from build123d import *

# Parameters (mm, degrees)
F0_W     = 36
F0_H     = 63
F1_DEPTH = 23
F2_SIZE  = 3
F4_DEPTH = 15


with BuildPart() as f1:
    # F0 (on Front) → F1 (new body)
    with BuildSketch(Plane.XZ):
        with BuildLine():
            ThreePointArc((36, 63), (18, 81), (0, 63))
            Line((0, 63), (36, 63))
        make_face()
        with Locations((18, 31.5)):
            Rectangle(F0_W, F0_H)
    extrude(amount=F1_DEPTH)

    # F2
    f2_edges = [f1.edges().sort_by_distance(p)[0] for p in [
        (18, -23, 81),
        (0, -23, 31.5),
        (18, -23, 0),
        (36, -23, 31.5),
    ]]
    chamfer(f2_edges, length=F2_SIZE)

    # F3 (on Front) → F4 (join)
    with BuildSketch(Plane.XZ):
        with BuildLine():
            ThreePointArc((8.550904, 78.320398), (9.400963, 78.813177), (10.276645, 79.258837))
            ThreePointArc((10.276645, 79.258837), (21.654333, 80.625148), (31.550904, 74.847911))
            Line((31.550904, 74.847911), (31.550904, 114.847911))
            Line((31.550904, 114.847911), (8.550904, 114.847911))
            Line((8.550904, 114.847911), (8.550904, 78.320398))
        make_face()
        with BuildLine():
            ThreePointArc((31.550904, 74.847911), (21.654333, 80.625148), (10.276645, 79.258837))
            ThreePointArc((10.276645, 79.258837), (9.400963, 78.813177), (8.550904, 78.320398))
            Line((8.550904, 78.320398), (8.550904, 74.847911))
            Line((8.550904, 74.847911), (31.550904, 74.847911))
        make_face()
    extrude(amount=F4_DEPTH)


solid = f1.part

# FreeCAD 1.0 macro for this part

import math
import FreeCAD as App
import Part
import Sketcher

V = App.Vector


def edges_at(feature, points):
    """Names of the edges that pass closest to the given points."""
    edges = feature.Shape.Edges
    near = lambda p: min(range(len(edges)), key=lambda i: edges[i].distToShape(Part.Vertex(*p))[0])
    return sorted({f"Edge{near(p) + 1}" for p in points})


def add_polygon(sketch, points):
    """Adds a closed chain of lines whose ends are joined by coincident constraints."""
    first, n = sketch.GeometryCount, len(points)
    for a, b in zip(points, points[1:] + points[:1]):
        sketch.addGeometry(Part.LineSegment(App.Vector(*a, 0), App.Vector(*b, 0)), False)
    for i in range(n):
        sketch.addConstraint(Sketcher.Constraint("Coincident", first + i, 2, first + (i + 1) % n, 1))

doc = App.newDocument("Part")
params = doc.addObject("Spreadsheet::Sheet", "Params")
for row, (alias, value) in enumerate([
    ("sketch1_radius", "18 mm"),
    ("sketch1_height", "63 mm"),
    ("pad1_length", "23 mm"),
    ("chamfer_size", "3 mm"),
    ("sketch2_width", "23 mm"),
    ("sketch2_height", "40 mm"),
    ("pad2_length", "15 mm"),
], start=1):
    params.set(f"A{row}", alias)
    params.set(f"B{row}", "=" + value)
    params.setAlias(f"B{row}", alias)

body = doc.addObject("PartDesign::Body", "Body")

# Sketch on XZ plane
sketch1 = body.newObject("Sketcher::SketchObject", "Sketch")
sketch1.AttachmentSupport = (doc.getObject("XZ_Plane"), [""])
sketch1.MapMode = "FlatFace"
sketch1.addGeometry([
    Part.ArcOfCircle(Part.Circle(V(18, 63, 0), V(0, 0, 1), 18), math.radians(0), math.radians(180)),
    Part.LineSegment(V(0, 63, 0), V(0, 0, 0)),
    Part.LineSegment(V(0, 0, 0), V(36, 0, 0)),
    Part.LineSegment(V(36, 0, 0), V(36, 63, 0)),
], False)
sketch1.addConstraint([
    Sketcher.Constraint("Tangent", 0, 2, 1, 1),
    Sketcher.Constraint("Coincident", 1, 2, 2, 1),
    Sketcher.Constraint("Coincident", 2, 2, 3, 1),
    Sketcher.Constraint("Tangent", 3, 2, 0, 1),
    Sketcher.Constraint("Vertical", 1),
    Sketcher.Constraint("Horizontal", 2),
    Sketcher.Constraint("Vertical", 3),
    Sketcher.Constraint("Coincident", 1, 2, -1, 1),
    Sketcher.Constraint("Radius", 0, 18.0),
    Sketcher.Constraint("DistanceY", 1, 2, 1, 1, 63.0),
])
sketch1.setExpression("Constraints[8]", "Params.sketch1_radius")
sketch1.setExpression("Constraints[9]", "Params.sketch1_height")
pad1 = body.newObject("PartDesign::Pad", "Pad")
pad1.Profile = sketch1
pad1.setExpression("Length", "Params.pad1_length")
doc.recompute()

chamfer = body.newObject("PartDesign::Chamfer", "Chamfer")
chamfer.Base = (pad1, edges_at(pad1, [
    (18, -23, 81),
    (0, -23, 31.5),
    (18, -23, 0),
    (36, -23, 31.5),
]))
chamfer.setExpression("Size", "Params.chamfer_size")

# Sketch on XZ plane
sketch2 = body.newObject("Sketcher::SketchObject", "Sketch001")
sketch2.AttachmentSupport = (doc.getObject("XZ_Plane"), [""])
sketch2.MapMode = "FlatFace"
add_polygon(sketch2, [(32, 75), (32, 115), (9, 115), (9, 75)])  # lines 0-3
sketch2.addConstraint([
    Sketcher.Constraint("Vertical", 0),
    Sketcher.Constraint("Horizontal", 1),
    Sketcher.Constraint("Vertical", 2),
    Sketcher.Constraint("Horizontal", 3),
    Sketcher.Constraint("DistanceX", 1, 2, 1, 1, 23.0),
    Sketcher.Constraint("DistanceY", 0, 1, 0, 2, 40.0),
    Sketcher.Constraint("DistanceY", -1, 1, 0, 2, 114.847911),
    Sketcher.Constraint("DistanceX", -1, 1, 0, 2, 31.550904),
])
sketch2.setExpression("Constraints[8]", "Params.sketch2_width")
sketch2.setExpression("Constraints[9]", "Params.sketch2_height")
pad2 = body.newObject("PartDesign::Pad", "Pad001")
pad2.Profile = sketch2
pad2.setExpression("Length", "Params.pad2_length")

doc.recompute()
